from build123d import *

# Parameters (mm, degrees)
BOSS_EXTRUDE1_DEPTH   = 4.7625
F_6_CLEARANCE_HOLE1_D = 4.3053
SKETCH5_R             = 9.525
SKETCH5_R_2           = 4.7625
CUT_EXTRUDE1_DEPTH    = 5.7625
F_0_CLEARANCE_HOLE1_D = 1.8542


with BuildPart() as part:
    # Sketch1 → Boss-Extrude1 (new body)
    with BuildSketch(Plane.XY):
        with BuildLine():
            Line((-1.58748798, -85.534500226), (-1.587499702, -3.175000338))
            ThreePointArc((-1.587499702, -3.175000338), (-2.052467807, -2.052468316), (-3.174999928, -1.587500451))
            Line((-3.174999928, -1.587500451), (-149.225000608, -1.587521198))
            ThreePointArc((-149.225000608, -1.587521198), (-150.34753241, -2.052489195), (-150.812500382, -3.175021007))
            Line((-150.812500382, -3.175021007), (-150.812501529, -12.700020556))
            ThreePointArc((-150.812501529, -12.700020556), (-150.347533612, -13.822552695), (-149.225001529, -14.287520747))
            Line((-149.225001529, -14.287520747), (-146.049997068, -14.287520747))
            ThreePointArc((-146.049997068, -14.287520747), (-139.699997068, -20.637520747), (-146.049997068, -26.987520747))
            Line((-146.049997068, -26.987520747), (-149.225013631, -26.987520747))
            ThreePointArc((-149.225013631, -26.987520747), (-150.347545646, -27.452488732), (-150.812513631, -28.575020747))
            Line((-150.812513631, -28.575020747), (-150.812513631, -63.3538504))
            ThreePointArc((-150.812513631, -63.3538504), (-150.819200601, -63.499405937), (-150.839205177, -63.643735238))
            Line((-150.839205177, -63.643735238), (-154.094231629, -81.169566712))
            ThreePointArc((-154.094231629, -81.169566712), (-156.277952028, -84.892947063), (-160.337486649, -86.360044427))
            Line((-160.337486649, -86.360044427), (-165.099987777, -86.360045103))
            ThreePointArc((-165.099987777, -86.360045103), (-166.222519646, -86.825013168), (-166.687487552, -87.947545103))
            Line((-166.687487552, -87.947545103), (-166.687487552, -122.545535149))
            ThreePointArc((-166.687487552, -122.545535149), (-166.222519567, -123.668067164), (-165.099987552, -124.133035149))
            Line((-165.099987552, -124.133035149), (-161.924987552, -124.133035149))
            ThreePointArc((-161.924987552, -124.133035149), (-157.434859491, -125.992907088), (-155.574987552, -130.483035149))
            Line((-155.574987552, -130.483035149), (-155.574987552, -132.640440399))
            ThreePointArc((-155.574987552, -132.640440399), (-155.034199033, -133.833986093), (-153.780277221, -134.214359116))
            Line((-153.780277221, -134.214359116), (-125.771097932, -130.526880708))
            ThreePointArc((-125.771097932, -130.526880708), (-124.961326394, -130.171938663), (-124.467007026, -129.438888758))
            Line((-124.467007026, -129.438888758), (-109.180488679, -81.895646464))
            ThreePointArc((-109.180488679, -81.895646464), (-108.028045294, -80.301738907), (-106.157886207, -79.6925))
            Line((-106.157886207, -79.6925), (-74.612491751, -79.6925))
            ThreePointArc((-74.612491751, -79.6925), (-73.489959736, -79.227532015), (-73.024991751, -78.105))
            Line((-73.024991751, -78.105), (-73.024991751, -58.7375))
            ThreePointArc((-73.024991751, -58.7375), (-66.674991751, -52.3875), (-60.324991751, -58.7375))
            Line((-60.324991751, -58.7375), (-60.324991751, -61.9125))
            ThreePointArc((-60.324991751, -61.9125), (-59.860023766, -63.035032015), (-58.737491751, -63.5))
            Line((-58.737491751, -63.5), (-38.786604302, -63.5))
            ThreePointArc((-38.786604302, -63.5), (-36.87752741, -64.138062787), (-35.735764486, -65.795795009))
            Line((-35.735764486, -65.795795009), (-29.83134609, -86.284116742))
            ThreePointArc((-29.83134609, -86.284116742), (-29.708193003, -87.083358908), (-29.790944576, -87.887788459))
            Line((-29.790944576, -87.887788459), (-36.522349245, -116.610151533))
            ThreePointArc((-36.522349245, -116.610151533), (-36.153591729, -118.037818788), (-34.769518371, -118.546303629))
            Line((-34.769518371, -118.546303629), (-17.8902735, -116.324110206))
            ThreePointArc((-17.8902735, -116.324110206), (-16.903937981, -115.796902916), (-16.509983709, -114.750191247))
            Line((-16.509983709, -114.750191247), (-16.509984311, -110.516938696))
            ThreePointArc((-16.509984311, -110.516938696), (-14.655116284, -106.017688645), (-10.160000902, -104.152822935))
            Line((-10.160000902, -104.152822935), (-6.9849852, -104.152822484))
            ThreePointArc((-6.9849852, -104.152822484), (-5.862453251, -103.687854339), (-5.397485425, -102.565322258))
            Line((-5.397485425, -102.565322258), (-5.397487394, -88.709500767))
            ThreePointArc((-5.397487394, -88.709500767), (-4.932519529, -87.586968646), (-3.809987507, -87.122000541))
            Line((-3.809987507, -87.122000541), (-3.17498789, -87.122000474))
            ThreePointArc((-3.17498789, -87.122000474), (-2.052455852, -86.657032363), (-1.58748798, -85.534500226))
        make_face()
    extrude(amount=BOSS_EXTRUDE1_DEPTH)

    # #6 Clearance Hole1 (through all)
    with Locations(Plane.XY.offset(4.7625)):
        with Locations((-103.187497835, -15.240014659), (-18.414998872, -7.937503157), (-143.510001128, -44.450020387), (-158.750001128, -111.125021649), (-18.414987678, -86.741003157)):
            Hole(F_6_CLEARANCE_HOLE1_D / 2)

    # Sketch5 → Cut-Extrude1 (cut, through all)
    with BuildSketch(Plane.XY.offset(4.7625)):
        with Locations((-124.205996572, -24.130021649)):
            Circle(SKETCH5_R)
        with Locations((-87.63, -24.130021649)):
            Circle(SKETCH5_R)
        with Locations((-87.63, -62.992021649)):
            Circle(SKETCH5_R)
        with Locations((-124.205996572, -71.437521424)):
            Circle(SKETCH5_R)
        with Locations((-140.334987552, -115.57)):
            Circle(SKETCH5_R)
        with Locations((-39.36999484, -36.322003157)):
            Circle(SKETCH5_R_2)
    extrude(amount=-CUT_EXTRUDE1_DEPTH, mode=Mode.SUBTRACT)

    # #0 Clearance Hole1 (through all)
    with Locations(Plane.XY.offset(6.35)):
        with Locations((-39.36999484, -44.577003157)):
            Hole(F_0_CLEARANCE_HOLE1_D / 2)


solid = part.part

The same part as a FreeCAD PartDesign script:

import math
import FreeCAD as App
import Part
import Sketcher

V = App.Vector
Q = App.Units.Quantity

doc = App.newDocument("Part")
params = doc.addObject("Spreadsheet::Sheet", "Params")
for row, (alias, value) in enumerate([
    ("sketch1_radius", "0.25 in"),
    ("sketch1_radius2", "0.25 in"),
    ("sketch1_radius3", "0.25 in"),
    ("sketch1_radius4", "0.25 in"),
    ("sketch1_radius5", "0.0625 in"),
    ("pad1_length", "0.1875 in"),
    ("hole_diameter", "0.1695 in"),
    ("sketch3_diameter", "0.75 in"),
    ("sketch3_diameter2", "0.375 in"),
    ("sketch4_diameter", "0.073 in"),
    ("hole2_diameter", "0.073 in"),
], start=1):
    params.set(f"A{row}", alias)
    params.set(f"B{row}", "=" + value)
    params.setAlias(f"B{row}", alias)

body = doc.addObject("PartDesign::Body", "Body")

sketch1 = doc.addObject("Sketcher::SketchObject", "Sketch")
body.addObject(sketch1)
sketch1.AttachmentSupport = (doc.XY_Plane, [""])
sketch1.MapMode = "FlatFace"
sketch1.addGeometry(Part.LineSegment(V(-1.587488, -85.5345, 0), V(-1.5875, -3.175, 0)), False)
sketch1.addGeometry(Part.ArcOfCircle(Part.Circle(V(-3.175, -3.175, 0), V(0, 0, 1), 1.5875), math.radians(0.000004), math.radians(90.000008)), False)
sketch1.addGeometry(Part.LineSegment(V(-3.175, -1.5875, 0), V(-149.225001, -1.587521, 0)), False)
sketch1.addGeometry(Part.ArcOfCircle(Part.Circle(V(-149.225, -3.175021, 0), V(0, 0, 1), 1.5875), math.radians(90.000008), math.radians(179.999993)), False)
sketch1.addGeometry(Part.LineSegment(V(-150.8125, -3.175021, 0), V(-150.812502, -12.700021, 0)), False)
sketch1.addGeometry(Part.ArcOfCircle(Part.Circle(V(-149.225002, -12.700021, 0), V(0, 0, 1), 1.5875), math.radians(179.999993), math.radians(270)), False)
sketch1.addGeometry(Part.LineSegment(V(-149.225002, -14.287521, 0), V(-146.049997, -14.287521, 0)), False)
sketch1.addGeometry(Part.ArcOfCircle(Part.Circle(V(-146.049997, -20.637521, 0), V(0, 0, 1), 6.35), math.radians(-90), math.radians(90)), False)
sketch1.addGeometry(Part.LineSegment(V(-146.049997, -26.987521, 0), V(-149.225014, -26.987521, 0)), False)
sketch1.addGeometry(Part.ArcOfCircle(Part.Circle(V(-149.225014, -28.575021, 0), V(0, 0, 1), 1.5875), math.radians(90), math.radians(180)), False)
sketch1.addGeometry(Part.LineSegment(V(-150.812514, -28.575021, 0), V(-150.812514, -63.35385, 0)), False)
sketch1.addGeometry(Part.ArcOfCircle(Part.Circle(V(-152.400014, -63.35385, 0), V(0, 0, 1), 1.5875), math.radians(-10.521509), math.radians(0)), False)
sketch1.addGeometry(Part.LineSegment(V(-150.839205, -63.643735, 0), V(-154.094232, -81.169567, 0)), False)
sketch1.addGeometry(Part.ArcOfCircle(Part.Circle(V(-160.337488, -80.010022, 0), V(0, 0, 1), 6.350023), math.radians(-89.999992), math.radians(-10.521523)), False)
sketch1.addGeometry(Part.LineSegment(V(-160.337487, -86.360044, 0), V(-165.099988, -86.360045, 0)), False)
sketch1.addGeometry(Part.ArcOfCircle(Part.Circle(V(-165.099988, -87.947545, 0), V(0, 0, 1), 1.5875), math.radians(90.000008), math.radians(180)), False)
sketch1.addGeometry(Part.LineSegment(V(-166.687488, -87.947545, 0), V(-166.687488, -122.545535, 0)), False)
sketch1.addGeometry(Part.ArcOfCircle(Part.Circle(V(-165.099988, -122.545535, 0), V(0, 0, 1), 1.5875), math.radians(180), math.radians(270)), False)
sketch1.addGeometry(Part.LineSegment(V(-165.099988, -124.133035, 0), V(-161.924988, -124.133035, 0)), False)
sketch1.addGeometry(Part.ArcOfCircle(Part.Circle(V(-161.924988, -130.483035, 0), V(0, 0, 1), 6.35), math.radians(0), math.radians(90)), False)
sketch1.addGeometry(Part.LineSegment(V(-155.574988, -130.483035, 0), V(-155.574988, -132.64044, 0)), False)
sketch1.addGeometry(Part.ArcOfCircle(Part.Circle(V(-153.987488, -132.64044, 0), V(0, 0, 1), 1.5875), math.radians(-180), math.radians(-82.5)), False)
sketch1.addGeometry(Part.LineSegment(V(-153.780277, -134.214359, 0), V(-125.771098, -130.526881, 0)), False)
sketch1.addGeometry(Part.ArcOfCircle(Part.Circle(V(-125.978308, -128.952962, 0), V(0, 0, 1), 1.5875), math.radians(-82.5), math.radians(-17.82409)), False)
sketch1.addGeometry(Part.LineSegment(V(-124.467007, -129.438889, 0), V(-109.180489, -81.895646, 0)), False)
sketch1.addGeometry(Part.ArcOfCircle(Part.Circle(V(-106.157886, -82.8675, 0), V(0, 0, 1), 3.175), math.radians(90), math.radians(162.17591)), False)
sketch1.addGeometry(Part.LineSegment(V(-106.157886, -79.6925, 0), V(-74.612492, -79.6925, 0)), False)
sketch1.addGeometry(Part.ArcOfCircle(Part.Circle(V(-74.612492, -78.105, 0), V(0, 0, 1), 1.5875), math.radians(-90), math.radians(0)), False)
sketch1.addGeometry(Part.LineSegment(V(-73.024992, -78.105, 0), V(-73.024992, -58.7375, 0)), False)
sketch1.addGeometry(Part.ArcOfCircle(Part.Circle(V(-66.674992, -58.7375, 0), V(0, 0, 1), 6.35), math.radians(0), math.radians(180)), False)
sketch1.addGeometry(Part.LineSegment(V(-60.324992, -58.7375, 0), V(-60.324992, -61.9125, 0)), False)
sketch1.addGeometry(Part.ArcOfCircle(Part.Circle(V(-58.737492, -61.9125, 0), V(0, 0, 1), 1.5875), math.radians(180), math.radians(270)), False)
sketch1.addGeometry(Part.LineSegment(V(-58.737492, -63.5, 0), V(-38.786604, -63.5, 0)), False)
sketch1.addGeometry(Part.ArcOfCircle(Part.Circle(V(-38.786604, -66.675, 0), V(0, 0, 1), 3.175), math.radians(16.076166), math.radians(90)), False)
sketch1.addGeometry(Part.LineSegment(V(-35.735764, -65.795795, 0), V(-29.831346, -86.284117, 0)), False)
sketch1.addGeometry(Part.ArcOfCircle(Part.Circle(V(-32.882186, -87.163322, 0), V(0, 0, 1), 3.175), math.radians(-13.189856), math.radians(16.076166)), False)
sketch1.addGeometry(Part.LineSegment(V(-29.790945, -87.887788, 0), V(-36.522349, -116.610152, 0)), False)
sketch1.addGeometry(Part.ArcOfCircle(Part.Circle(V(-34.976729, -116.972385, 0), V(0, 0, 1), 1.5875), math.radians(166.810144), math.radians(277.499996)), False)
sketch1.addGeometry(Part.LineSegment(V(-34.769518, -118.546304, 0), V(-17.890273, -116.32411, 0)), False)
sketch1.addGeometry(Part.ArcOfCircle(Part.Circle(V(-18.097484, -114.750191, 0), V(0, 0, 1), 1.5875), math.radians(-82.500004), math.radians(0.000008)), False)
sketch1.addGeometry(Part.LineSegment(V(-16.509984, -114.750191, 0), V(-16.509984, -110.516939, 0)), False)
sketch1.addGeometry(Part.ArcOfCircle(Part.Circle(V(-10.16, -110.502823, 0), V(0, 0, 1), 6.35), math.radians(90.000008), math.radians(180.127366)), False)
sketch1.addGeometry(Part.LineSegment(V(-10.160001, -104.152823, 0), V(-6.984985, -104.152822, 0)), False)
sketch1.addGeometry(Part.ArcOfCircle(Part.Circle(V(-6.984985, -102.565322, 0), V(0, 0, 1), 1.5875), math.radians(-89.999992), math.radians(0.000008)), False)
sketch1.addGeometry(Part.LineSegment(V(-5.397485, -102.565322, 0), V(-5.397487, -88.709501, 0)), False)
sketch1.addGeometry(Part.ArcOfCircle(Part.Circle(V(-3.809987, -88.709501, 0), V(0, 0, 1), 1.5875), math.radians(90.000004), math.radians(180.000008)), False)
sketch1.addGeometry(Part.LineSegment(V(-3.809988, -87.122001, 0), V(-3.174988, -87.122, 0)), False)
sketch1.addGeometry(Part.ArcOfCircle(Part.Circle(V(-3.174988, -85.5345, 0), V(0, 0, 1), 1.5875), math.radians(-89.999996), math.radians(0.000008)), False)
sketch1.addConstraint(Sketcher.Constraint("Coincident", 0, 2, 1, 1))
sketch1.addConstraint(Sketcher.Constraint("Coincident", 1, 2, 2, 1))
sketch1.addConstraint(Sketcher.Constraint("Coincident", 2, 2, 3, 1))
sketch1.addConstraint(Sketcher.Constraint("Coincident", 3, 2, 4, 1))
sketch1.addConstraint(Sketcher.Constraint("Coincident", 4, 2, 5, 1))
sketch1.addConstraint(Sketcher.Constraint("Coincident", 5, 2, 6, 1))
sketch1.addConstraint(Sketcher.Constraint("Coincident", 6, 2, 7, 2))
sketch1.addConstraint(Sketcher.Constraint("Coincident", 7, 1, 8, 1))
sketch1.addConstraint(Sketcher.Constraint("Coincident", 8, 2, 9, 1))
sketch1.addConstraint(Sketcher.Constraint("Coincident", 9, 2, 10, 1))
sketch1.addConstraint(Sketcher.Constraint("Coincident", 10, 2, 11, 2))
sketch1.addConstraint(Sketcher.Constraint("Coincident", 11, 1, 12, 1))
sketch1.addConstraint(Sketcher.Constraint("Coincident", 12, 2, 13, 2))
sketch1.addConstraint(Sketcher.Constraint("Coincident", 13, 1, 14, 1))
sketch1.addConstraint(Sketcher.Constraint("Coincident", 14, 2, 15, 1))
sketch1.addConstraint(Sketcher.Constraint("Coincident", 15, 2, 16, 1))
sketch1.addConstraint(Sketcher.Constraint("Coincident", 16, 2, 17, 1))
sketch1.addConstraint(Sketcher.Constraint("Coincident", 17, 2, 18, 1))
sketch1.addConstraint(Sketcher.Constraint("Coincident", 18, 2, 19, 2))
sketch1.addConstraint(Sketcher.Constraint("Coincident", 19, 1, 20, 1))
sketch1.addConstraint(Sketcher.Constraint("Coincident", 20, 2, 21, 1))
sketch1.addConstraint(Sketcher.Constraint("Coincident", 21, 2, 22, 1))
sketch1.addConstraint(Sketcher.Constraint("Coincident", 22, 2, 23, 1))
sketch1.addConstraint(Sketcher.Constraint("Coincident", 23, 2, 24, 1))
sketch1.addConstraint(Sketcher.Constraint("Coincident", 24, 2, 25, 2))
sketch1.addConstraint(Sketcher.Constraint("Coincident", 25, 1, 26, 1))
sketch1.addConstraint(Sketcher.Constraint("Coincident", 26, 2, 27, 1))
sketch1.addConstraint(Sketcher.Constraint("Coincident", 27, 2, 28, 1))
sketch1.addConstraint(Sketcher.Constraint("Coincident", 28, 2, 29, 2))
sketch1.addConstraint(Sketcher.Constraint("Coincident", 29, 1, 30, 1))
sketch1.addConstraint(Sketcher.Constraint("Coincident", 30, 2, 31, 1))
sketch1.addConstraint(Sketcher.Constraint("Coincident", 31, 2, 32, 1))
sketch1.addConstraint(Sketcher.Constraint("Coincident", 32, 2, 33, 2))
sketch1.addConstraint(Sketcher.Constraint("Coincident", 33, 1, 34, 1))
sketch1.addConstraint(Sketcher.Constraint("Coincident", 34, 2, 35, 2))
sketch1.addConstraint(Sketcher.Constraint("Coincident", 35, 1, 36, 1))
sketch1.addConstraint(Sketcher.Constraint("Coincident", 36, 2, 37, 1))
sketch1.addConstraint(Sketcher.Constraint("Coincident", 37, 2, 38, 1))
sketch1.addConstraint(Sketcher.Constraint("Coincident", 38, 2, 39, 1))
sketch1.addConstraint(Sketcher.Constraint("Coincident", 39, 2, 40, 1))
sketch1.addConstraint(Sketcher.Constraint("Coincident", 40, 2, 41, 2))
sketch1.addConstraint(Sketcher.Constraint("Coincident", 41, 1, 42, 1))
sketch1.addConstraint(Sketcher.Constraint("Coincident", 42, 2, 43, 1))
sketch1.addConstraint(Sketcher.Constraint("Coincident", 43, 2, 44, 1))
sketch1.addConstraint(Sketcher.Constraint("Coincident", 44, 2, 45, 2))
sketch1.addConstraint(Sketcher.Constraint("Coincident", 45, 1, 46, 1))
sketch1.addConstraint(Sketcher.Constraint("Coincident", 46, 2, 47, 1))
sketch1.addConstraint(Sketcher.Constraint("Coincident", 47, 2, 0, 1))
sketch1.addConstraint(Sketcher.Constraint("Vertical", 4))
sketch1.addConstraint(Sketcher.Constraint("Horizontal", 6))
sketch1.addConstraint(Sketcher.Constraint("Horizontal", 8))
sketch1.addConstraint(Sketcher.Constraint("Vertical", 10))
sketch1.addConstraint(Sketcher.Constraint("Horizontal", 14))
sketch1.addConstraint(Sketcher.Constraint("Vertical", 16))
sketch1.addConstraint(Sketcher.Constraint("Horizontal", 18))
sketch1.addConstraint(Sketcher.Constraint("Vertical", 20))
sketch1.addConstraint(Sketcher.Constraint("Horizontal", 26))
sketch1.addConstraint(Sketcher.Constraint("Vertical", 28))
sketch1.addConstraint(Sketcher.Constraint("Vertical", 30))
sketch1.addConstraint(Sketcher.Constraint("Horizontal", 32))
sketch1.addConstraint(Sketcher.Constraint("Vertical", 40))
sketch1.addConstraint(Sketcher.Constraint("Horizontal", 42))
sketch1.addConstraint(Sketcher.Constraint("Vertical", 44))
sketch1.addConstraint(Sketcher.Constraint("Horizontal", 46))
sketch1.addConstraint(Sketcher.Constraint("Radius", 7, Q("0.25 in")))
sketch1.addConstraint(Sketcher.Constraint("Radius", 19, Q("0.25 in")))
sketch1.addConstraint(Sketcher.Constraint("Radius", 29, Q("0.25 in")))
sketch1.addConstraint(Sketcher.Constraint("Radius", 41, Q("0.25 in")))
sketch1.addConstraint(Sketcher.Constraint("Radius", 1, Q("0.0625 in")))
sketch1.addConstraint(Sketcher.Constraint("Radius", 3, Q("0.0625 in")))
sketch1.addConstraint(Sketcher.Constraint("Radius", 5, Q("0.0625 in")))
sketch1.addConstraint(Sketcher.Constraint("Radius", 9, Q("0.0625 in")))
sketch1.addConstraint(Sketcher.Constraint("Radius", 11, Q("0.0625 in")))
sketch1.addConstraint(Sketcher.Constraint("Radius", 15, Q("0.0625 in")))
sketch1.addConstraint(Sketcher.Constraint("Radius", 17, Q("0.0625 in")))
sketch1.addConstraint(Sketcher.Constraint("Radius", 21, Q("0.0625 in")))
sketch1.addConstraint(Sketcher.Constraint("Radius", 23, Q("0.0625 in")))
sketch1.addConstraint(Sketcher.Constraint("Radius", 25, Q("0.125 in")))
sketch1.addConstraint(Sketcher.Constraint("Radius", 27, Q("0.0625 in")))
sketch1.addConstraint(Sketcher.Constraint("Radius", 31, Q("0.0625 in")))
sketch1.addConstraint(Sketcher.Constraint("Radius", 33, Q("0.125 in")))
sketch1.addConstraint(Sketcher.Constraint("Radius", 35, Q("0.125 in")))
sketch1.addConstraint(Sketcher.Constraint("Radius", 37, Q("0.0625 in")))
sketch1.addConstraint(Sketcher.Constraint("Radius", 39, Q("0.0625 in")))
sketch1.addConstraint(Sketcher.Constraint("Radius", 43, Q("0.0625 in")))
sketch1.addConstraint(Sketcher.Constraint("Radius", 45, Q("0.0625 in")))
sketch1.addConstraint(Sketcher.Constraint("Radius", 47, Q("0.0625 in")))
sketch1.addConstraint(Sketcher.Constraint("DistanceX", 41, 3, -1, 1, Q("0.4 in")))
sketch1.addConstraint(Sketcher.Constraint("DistanceY", 31, 2, -1, 1, Q("2.5 in")))
sketch1.addConstraint(Sketcher.Constraint("DistanceX", 41, 1, -1, 1, Q("0.4 in")))
sketch1.addConstraint(Sketcher.Constraint("Distance", 2, Q("5.75 in")))
sketch1.addConstraint(Sketcher.Constraint("DistanceX", 6, 1, 6, 2, Q("0.1250002 in")))
sketch1.addConstraint(Sketcher.Constraint("DistanceX", 14, 2, 14, 1, Q("0.1875 in")))
sketch1.addConstraint(Sketcher.Constraint("DistanceX", 18, 1, 18, 2, Q("0.125 in")))
sketch1.addConstraint(Sketcher.Constraint("DistanceX", 46, 1, 46, 2, Q("0.025 in")))
sketch1.addConstraint(Sketcher.Constraint("DistanceY", 4, 2, 4, 1, Q("0.375 in")))
sketch1.addConstraint(Sketcher.Constraint("DistanceY", 30, 2, 30, 1, Q("0.125 in")))
sketch1.addConstraint(Sketcher.Constraint("DistanceX", 7, 3, -1, 1, Q("5.7499999 in")))
sketch1.addConstraint(Sketcher.Constraint("DistanceX", 6, 2, -1, 1, Q("5.7499999 in")))
sketch1.addConstraint(Sketcher.Constraint("DistanceX", 7, 1, -1, 1, Q("5.7499999 in")))
sketch1.addConstraint(Sketcher.Constraint("DistanceY", 45, 1, -1, 1, Q("3.43 in")))
sketch1.addConstraint(Sketcher.Constraint("DistanceY", 28, 1, 28, 2, Q("0.7625 in")))
sketch1.addConstraint(Sketcher.Constraint("DistanceX", 1, 3, -1, 1, Q("0.125 in")))
sketch1.addConstraint(Sketcher.Constraint("DistanceY", 1, 3, -1, 1, Q("0.125 in")))
sketch1.addConstraint(Sketcher.Constraint("DistanceX", 3, 3, -1, 1, Q("5.875 in")))
sketch1.addConstraint(Sketcher.Constraint("DistanceY", 27, 3, -1, 1, Q("3.075 in")))
sketch1.addConstraint(Sketcher.Constraint("DistanceY", 29, 3, -1, 1, Q("2.3125 in")))
sketch1.addConstraint(Sketcher.Constraint("DistanceY", 0, 2, -1, 1, Q("0.125 in")))
sketch1.addConstraint(Sketcher.Constraint("DistanceX", 1, 2, -1, 1, Q("0.125 in")))
sketch1.addConstraint(Sketcher.Constraint("DistanceY", 27, 2, -1, 1, Q("3.075 in")))
sketch1.addConstraint(Sketcher.Constraint("DistanceY", 29, 1, -1, 1, Q("2.3125 in")))
sketch1.addConstraint(Sketcher.Constraint("Distance", 0, Q("3.2425 in")))
sketch1.addConstraint(Sketcher.Constraint("DistanceY", 44, 2, -1, 1, Q("3.4925 in")))
sketch1.addConstraint(Sketcher.Constraint("Radius", 13, Q("6.350023 mm")))
sketch1.addConstraint(Sketcher.Constraint("DistanceY", 10, 2, 10, 1, Q("34.77883 mm")))
sketch1.addConstraint(Sketcher.Constraint("DistanceY", 16, 2, 16, 1, Q("34.59799 mm")))
sketch1.addConstraint(Sketcher.Constraint("DistanceY", 44, 1, 44, 2, Q("13.855821 mm")))
sketch1.addConstraint(Sketcher.Constraint("Distance", 22, Q("28.250869 mm")))
sketch1.addConstraint(Sketcher.Constraint("Distance", 24, Q("49.94034 mm")))
sketch1.addConstraint(Sketcher.Constraint("Distance", 36, Q("29.500609 mm")))
sketch1.addConstraint(Sketcher.Constraint("DistanceX", 8, 2, 8, 1, Q("3.175017 mm")))
sketch1.addConstraint(Sketcher.Constraint("DistanceX", 26, 1, 26, 2, Q("31.545394 mm")))
sketch1.addConstraint(Sketcher.Constraint("DistanceX", 32, 1, 32, 2, Q("19.950887 mm")))
sketch1.addConstraint(Sketcher.Constraint("DistanceX", 42, 1, 42, 2, Q("3.175016 mm")))
sketch1.addConstraint(Sketcher.Constraint("DistanceY", 20, 2, 20, 1, Q("2.157405 mm")))
sketch1.addConstraint(Sketcher.Constraint("DistanceY", 40, 1, 40, 2, Q("4.233253 mm")))
sketch1.addConstraint(Sketcher.Constraint("DistanceY", 3, 3, -1, 1, Q("3.175021 mm")))
sketch1.addConstraint(Sketcher.Constraint("DistanceY", 5, 3, -1, 1, Q("12.700021 mm")))
sketch1.addConstraint(Sketcher.Constraint("DistanceY", 11, 3, -1, 1, Q("63.35385 mm")))
sketch1.addConstraint(Sketcher.Constraint("DistanceY", 13, 3, -1, 1, Q("80.010022 mm")))
sketch1.addConstraint(Sketcher.Constraint("DistanceY", 21, 3, -1, 1, Q("132.64044 mm")))
sketch1.addConstraint(Sketcher.Constraint("DistanceX", 23, 3, -1, 1, Q("125.978308 mm")))
sketch1.addConstraint(Sketcher.Constraint("DistanceY", 23, 3, -1, 1, Q("128.952962 mm")))
sketch1.addConstraint(Sketcher.Constraint("DistanceX", 27, 3, -1, 1, Q("74.612492 mm")))
sketch1.addConstraint(Sketcher.Constraint("DistanceY", 35, 3, -1, 1, Q("87.163322 mm")))
sketch1.addConstraint(Sketcher.Constraint("DistanceX", 37, 3, -1, 1, Q("34.976729 mm")))
sketch1.addConstraint(Sketcher.Constraint("DistanceY", 39, 3, -1, 1, Q("114.750191 mm")))
sketch1.addConstraint(Sketcher.Constraint("DistanceX", 47, 3, -1, 1, Q("3.174988 mm")))
sketch1.addConstraint(Sketcher.Constraint("DistanceY", 3, 2, -1, 1, Q("3.175021 mm")))
sketch1.addConstraint(Sketcher.Constraint("DistanceY", 9, 2, -1, 1, Q("28.575021 mm")))
sketch1.addConstraint(Sketcher.Constraint("DistanceX", 12, 2, -1, 1, Q("154.094232 mm")))
sketch1.addConstraint(Sketcher.Constraint("DistanceY", 20, 2, -1, 1, Q("132.64044 mm")))
sketch1.addConstraint(Sketcher.Constraint("DistanceY", 21, 2, -1, 1, Q("134.214359 mm")))
sketch1.addConstraint(Sketcher.Constraint("DistanceY", 22, 2, -1, 1, Q("130.526881 mm")))
sketch1.addConstraint(Sketcher.Constraint("DistanceY", 23, 2, -1, 1, Q("129.438889 mm")))
sketch1.addConstraint(Sketcher.Constraint("DistanceX", 24, 2, -1, 1, Q("109.180489 mm")))
sketch1.addConstraint(Sketcher.Constraint("DistanceX", 26, 2, -1, 1, Q("74.612492 mm")))
sketch1.addConstraint(Sketcher.Constraint("DistanceX", 31, 2, -1, 1, Q("58.737492 mm")))
sketch1.addConstraint(Sketcher.Constraint("DistanceY", 35, 1, -1, 1, Q("87.887788 mm")))
sketch1.addConstraint(Sketcher.Constraint("DistanceX", 36, 2, -1, 1, Q("36.522349 mm")))
sketch1.addConstraint(Sketcher.Constraint("DistanceY", 36, 2, -1, 1, Q("116.610152 mm")))
sketch1.addConstraint(Sketcher.Constraint("DistanceX", 37, 2, -1, 1, Q("34.769518 mm")))
sketch1.addConstraint(Sketcher.Constraint("DistanceY", 38, 2, -1, 1, Q("116.32411 mm")))
sketch1.addConstraint(Sketcher.Constraint("DistanceY", 39, 2, -1, 1, Q("114.750191 mm")))
sketch1.addConstraint(Sketcher.Constraint("Distance", 12, Q("17.825543 mm")))
sketch1.addConstraint(Sketcher.Constraint("Distance", 34, Q("21.322136 mm")))
sketch1.addConstraint(Sketcher.Constraint("DistanceX", 9, 3, -1, 1, Q("149.225014 mm")))
sketch1.addConstraint(Sketcher.Constraint("DistanceX", 13, 3, -1, 1, Q("160.337488 mm")))
sketch1.addConstraint(Sketcher.Constraint("DistanceX", 15, 3, -1, 1, Q("165.099988 mm")))
sketch1.addConstraint(Sketcher.Constraint("DistanceY", 17, 3, -1, 1, Q("122.545535 mm")))
sketch1.addConstraint(Sketcher.Constraint("DistanceX", 33, 3, -1, 1, Q("38.786604 mm")))
sketch1.addConstraint(Sketcher.Constraint("DistanceY", 41, 3, -1, 1, Q("110.502823 mm")))
sketch1.addConstraint(Sketcher.Constraint("DistanceX", 43, 3, -1, 1, Q("6.984985 mm")))
sketch1.addConstraint(Sketcher.Constraint("DistanceX", 13, 1, -1, 1, Q("160.337487 mm")))
sketch1.addConstraint(Sketcher.Constraint("DistanceY", 15, 2, -1, 1, Q("87.947545 mm")))
sketch1.addConstraint(Sketcher.Constraint("DistanceX", 17, 2, -1, 1, Q("165.099988 mm")))
sketch1.addConstraint(Sketcher.Constraint("DistanceX", 33, 1, -1, 1, Q("35.735764 mm")))
sketch1.addConstraint(Sketcher.Constraint("DistanceX", 45, 1, -1, 1, Q("3.809988 mm")))
sketch1.setExpression("Constraints[64]", "Params.sketch1_radius")
sketch1.setExpression("Constraints[65]", "Params.sketch1_radius2")
sketch1.setExpression("Constraints[66]", "Params.sketch1_radius3")
sketch1.setExpression("Constraints[67]", "Params.sketch1_radius4")
sketch1.setExpression("Constraints[68]", "Params.sketch1_radius5")
pad1 = doc.addObject("PartDesign::Pad", "Pad")
body.addObject(pad1)
pad1.Profile = sketch1
pad1.setExpression("Length", "Params.pad1_length")

sketch2 = doc.addObject("Sketcher::SketchObject", "Sketch001")
body.addObject(sketch2)
sketch2.AttachmentSupport = (doc.XY_Plane, [""])
sketch2.MapMode = "FlatFace"
sketch2.AttachmentOffset = App.Placement(V(0, 0, 0.1875 * 25.4), App.Rotation())
sketch2.addGeometry(Part.Circle(V(-103.2, -15.2, 0), V(0, 0, 1), 2.2), False)
sketch2.addGeometry(Part.Circle(V(-18.4, -7.9, 0), V(0, 0, 1), 2.2), False)
sketch2.addGeometry(Part.Circle(V(-143.5, -44.5, 0), V(0, 0, 1), 2.2), False)
sketch2.addGeometry(Part.Circle(V(-158.8, -111.1, 0), V(0, 0, 1), 2.2), False)
sketch2.addGeometry(Part.Circle(V(-18.4, -86.7, 0), V(0, 0, 1), 2.2), False)
sketch2.addConstraint(Sketcher.Constraint("Equal", 0, 1))
sketch2.addConstraint(Sketcher.Constraint("Equal", 1, 2))
sketch2.addConstraint(Sketcher.Constraint("Equal", 2, 3))
sketch2.addConstraint(Sketcher.Constraint("Equal", 3, 4))
sketch2.addConstraint(Sketcher.Constraint("Diameter", 0, Q("0.1695 in")))
sketch2.addConstraint(Sketcher.Constraint("DistanceX", 3, 3, 2, 3, Q("0.6 in")))
sketch2.addConstraint(Sketcher.Constraint("DistanceX", 2, 3, -1, 1, Q("5.65 in")))
sketch2.addConstraint(Sketcher.Constraint("DistanceX", 0, 3, -1, 1, Q("4.0624999 in")))
sketch2.addConstraint(Sketcher.Constraint("DistanceX", 1, 3, -1, 1, Q("0.725 in")))
sketch2.addConstraint(Sketcher.Constraint("DistanceY", 1, 3, -1, 1, Q("0.3125001 in")))
sketch2.addConstraint(Sketcher.Constraint("DistanceY", 4, 3, -1, 1, Q("3.4150001 in")))
sketch2.addConstraint(Sketcher.Constraint("DistanceY", 3, 3, 2, 3, Q("2.625 in")))
sketch2.addConstraint(Sketcher.Constraint("DistanceY", 2, 3, -1, 1, Q("44.45002 mm")))
sketch2.addConstraint(Sketcher.Constraint("DistanceY", 0, 3, 1, 3, Q("7.302512 mm")))
sketch2.addConstraint(Sketcher.Constraint("DistanceX", 0, 3, 4, 3, Q("84.77251 mm")))
doc.recompute()
hole = doc.addObject("PartDesign::Hole", "Hole")
body.addObject(hole)
hole.Profile = sketch2
hole.ThreadType = "None"
hole.setExpression("Diameter", "Params.hole_diameter")
hole.DepthType = "ThroughAll"

sketch3 = doc.addObject("Sketcher::SketchObject", "Sketch002")
body.addObject(sketch3)
sketch3.AttachmentSupport = (doc.XY_Plane, [""])
sketch3.MapMode = "FlatFace"
sketch3.AttachmentOffset = App.Placement(V(0, 0, 0.1875 * 25.4), App.Rotation())
sketch3.addGeometry(Part.Circle(V(-124.2, -24.1, 0), V(0, 0, 1), 9.5), False)
sketch3.addGeometry(Part.Circle(V(-87.6, -24.1, 0), V(0, 0, 1), 9.5), False)
sketch3.addGeometry(Part.Circle(V(-87.6, -63, 0), V(0, 0, 1), 9.5), False)
sketch3.addGeometry(Part.Circle(V(-124.2, -71.4, 0), V(0, 0, 1), 9.5), False)
sketch3.addGeometry(Part.Circle(V(-140.3, -115.6, 0), V(0, 0, 1), 9.5), False)
sketch3.addGeometry(Part.Circle(V(-39.4, -36.3, 0), V(0, 0, 1), 4.8), False)
sketch3.addConstraint(Sketcher.Constraint("Equal", 0, 1))
sketch3.addConstraint(Sketcher.Constraint("Equal", 1, 2))
sketch3.addConstraint(Sketcher.Constraint("Equal", 2, 3))
sketch3.addConstraint(Sketcher.Constraint("Equal", 3, 4))
sketch3.addConstraint(Sketcher.Constraint("Horizontal", 0, 3, 1, 3))
sketch3.addConstraint(Sketcher.Constraint("Vertical", 1, 3, 2, 3))
sketch3.addConstraint(Sketcher.Constraint("Vertical", 0, 3, 3, 3))
sketch3.addConstraint(Sketcher.Constraint("Diameter", 0, Q("0.75 in")))
sketch3.addConstraint(Sketcher.Constraint("Diameter", 5, Q("0.375 in")))
sketch3.addConstraint(Sketcher.Constraint("DistanceX", 0, 3, -1, 1, Q("4.8899999 in")))
sketch3.addConstraint(Sketcher.Constraint("DistanceX", 1, 3, -1, 1, Q("3.45 in")))
sketch3.addConstraint(Sketcher.Constraint("DistanceY", 4, 3, -1, 1, Q("4.55 in")))
sketch3.addConstraint(Sketcher.Constraint("DistanceY", 5, 3, -1, 1, Q("1.4300001 in")))
sketch3.addConstraint(Sketcher.Constraint("DistanceY", 2, 3, 1, 3, Q("1.53 in")))
sketch3.addConstraint(Sketcher.Constraint("DistanceX", 0, 3, 5, 3, Q("3.3400001 in")))
sketch3.addConstraint(Sketcher.Constraint("DistanceY", 3, 3, 2, 3, Q("0.3325 in")))
sketch3.addConstraint(Sketcher.Constraint("DistanceY", 0, 3, -1, 1, Q("24.130022 mm")))
sketch3.addConstraint(Sketcher.Constraint("DistanceX", 4, 3, 3, 3, Q("16.128991 mm")))
sketch3.setExpression("Constraints[7]", "Params.sketch3_diameter")
sketch3.setExpression("Constraints[8]", "Params.sketch3_diameter2")
pocket1 = doc.addObject("PartDesign::Pocket", "Pocket")
body.addObject(pocket1)
pocket1.Profile = sketch3
pocket1.Type = "ThroughAll"

sketch4 = doc.addObject("Sketcher::SketchObject", "Sketch003")
body.addObject(sketch4)
sketch4.AttachmentSupport = (doc.XY_Plane, [""])
sketch4.MapMode = "FlatFace"
sketch4.AttachmentOffset = App.Placement(V(0, 0, 0.25 * 25.4), App.Rotation())
sketch4.addGeometry(Part.Circle(V(-39.4, -44.6, 0), V(0, 0, 1), 0.9), False)
sketch4.addConstraint(Sketcher.Constraint("Diameter", 0, Q("0.073 in")))
sketch4.addConstraint(Sketcher.Constraint("DistanceY", 0, 3, -1, 1, Q("1.7550001 in")))
sketch4.addConstraint(Sketcher.Constraint("DistanceX", 0, 3, -1, 1, Q("39.369995 mm")))
sketch4.setExpression("Constraints[0]", "Params.sketch4_diameter")
doc.recompute()
hole2 = doc.addObject("PartDesign::Hole", "Hole001")
body.addObject(hole2)
hole2.Profile = sketch4
hole2.ThreadType = "None"
hole2.setExpression("Diameter", "Params.hole2_diameter")
hole2.DepthType = "ThroughAll"

doc.recompute()
